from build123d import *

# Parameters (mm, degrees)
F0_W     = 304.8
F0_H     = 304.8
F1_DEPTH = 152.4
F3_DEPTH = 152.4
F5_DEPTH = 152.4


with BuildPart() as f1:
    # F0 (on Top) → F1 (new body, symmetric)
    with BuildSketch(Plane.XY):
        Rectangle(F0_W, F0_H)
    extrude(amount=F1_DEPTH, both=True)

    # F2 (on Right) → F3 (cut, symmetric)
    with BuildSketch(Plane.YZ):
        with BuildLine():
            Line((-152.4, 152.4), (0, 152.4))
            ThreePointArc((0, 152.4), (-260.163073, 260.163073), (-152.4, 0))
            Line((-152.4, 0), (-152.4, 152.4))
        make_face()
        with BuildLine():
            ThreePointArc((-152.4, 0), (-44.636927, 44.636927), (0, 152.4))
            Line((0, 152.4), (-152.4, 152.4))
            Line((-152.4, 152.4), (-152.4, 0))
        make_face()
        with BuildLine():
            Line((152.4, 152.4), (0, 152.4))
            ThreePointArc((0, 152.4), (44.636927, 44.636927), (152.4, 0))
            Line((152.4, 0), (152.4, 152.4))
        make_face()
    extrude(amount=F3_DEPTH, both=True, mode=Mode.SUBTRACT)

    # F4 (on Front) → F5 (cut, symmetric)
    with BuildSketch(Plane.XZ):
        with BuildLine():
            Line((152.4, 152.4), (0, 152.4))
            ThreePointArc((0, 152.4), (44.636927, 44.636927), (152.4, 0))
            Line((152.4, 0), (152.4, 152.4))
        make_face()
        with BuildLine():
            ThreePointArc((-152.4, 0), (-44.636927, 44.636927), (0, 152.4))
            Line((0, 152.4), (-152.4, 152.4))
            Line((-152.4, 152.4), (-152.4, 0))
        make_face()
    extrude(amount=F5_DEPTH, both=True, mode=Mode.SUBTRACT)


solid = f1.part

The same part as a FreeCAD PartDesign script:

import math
import FreeCAD as App
import Part
import Sketcher
Q = App.Units.Quantity


def add_polygon(sketch, points):
    """Adds a closed chain of lines whose ends are joined by coincident constraints."""
    first, n = sketch.GeometryCount, len(points)
    for a, b in zip(points, points[1:] + points[:1]):
        sketch.addGeometry(Part.LineSegment(App.Vector(*a, 0), App.Vector(*b, 0)), False)
    for i in range(n):
        sketch.addConstraint(Sketcher.Constraint("Coincident", first + i, 2, first + (i + 1) % n, 1))

doc = App.newDocument("Part")
body = doc.addObject("PartDesign::Body", "Body")

sketch1 = body.newObject("Sketcher::SketchObject", "Sketch")
sketch1.AttachmentSupport = (doc.getObject("XY_Plane"), [""])
sketch1.MapMode = "FlatFace"
add_polygon(sketch1, [(-152, 152), (-152, -152), (152, -152), (152, 152)])
sketch1.addConstraint(Sketcher.Constraint("Vertical", 0))
sketch1.addConstraint(Sketcher.Constraint("Horizontal", 1))
sketch1.addConstraint(Sketcher.Constraint("Vertical", 2))
sketch1.addConstraint(Sketcher.Constraint("Horizontal", 3))
sketch1.addConstraint(Sketcher.Constraint("Symmetric", 0, 2, 2, 2, -1, 1))
sketch1.addConstraint(Sketcher.Constraint("Equal", 3, 0))
sketch1.addConstraint(Sketcher.Constraint("DistanceX", 1, 1, 1, 2, Q("12 in")))
pad1 = body.newObject("PartDesign::Pad", "Pad")
pad1.Profile = sketch1
pad1.Length = Q("12 in")
pad1.Midplane = True

sketch2 = body.newObject("Sketcher::SketchObject", "Sketch001")
sketch2.AttachmentSupport = (doc.getObject("YZ_Plane"), [""])
sketch2.MapMode = "FlatFace"
sketch2.addGeometry(Part.ArcOfCircle(Part.Circle(App.Vector(-152, 152, 0), App.Vector(0, 0, 1), 152), math.radians(0), math.radians(270)), False)
sketch2.addGeometry(Part.ArcOfCircle(Part.Circle(App.Vector(-152, 152, 0), App.Vector(0, 0, 1), 152), math.radians(-90), math.radians(0)), False)
sketch2.addGeometry(Part.LineSegment(App.Vector(152, 152, 0), App.Vector(0, 152, 0)), False)
sketch2.addGeometry(Part.ArcOfCircle(Part.Circle(App.Vector(152, 152, 0), App.Vector(0, 0, 1), 152), math.radians(-180), math.radians(-90)), False)
sketch2.addGeometry(Part.LineSegment(App.Vector(152, 0, 0), App.Vector(152, 152, 0)), False)
sketch2.addConstraint(Sketcher.Constraint("Tangent", 0, 1, 1, 2))
sketch2.addConstraint(Sketcher.Constraint("Coincident", 1, 1, 0, 2))
sketch2.addConstraint(Sketcher.Constraint("Coincident", 2, 2, 3, 1))
sketch2.addConstraint(Sketcher.Constraint("Coincident", 3, 2, 4, 1))
sketch2.addConstraint(Sketcher.Constraint("Coincident", 4, 2, 2, 1))
sketch2.addConstraint(Sketcher.Constraint("Horizontal", 2))
sketch2.addConstraint(Sketcher.Constraint("Vertical", 4))
sketch2.addConstraint(Sketcher.Constraint("Coincident", 2, 2, 0, 1))
sketch2.addConstraint(Sketcher.Constraint("Coincident", 4, 2, 3, 3))
sketch2.addConstraint(Sketcher.Constraint("Equal", 1, 3))
sketch2.addConstraint(Sketcher.Constraint("Symmetric", 1, 1, 3, 2, -1, 1))
sketch2.addConstraint(Sketcher.Constraint("Symmetric", 0, 3, 3, 3, -2))
sketch2.addConstraint(Sketcher.Constraint("Radius", 0, Q("6 in")))
pocket1 = body.newObject("PartDesign::Pocket", "Pocket")
pocket1.Profile = sketch2
pocket1.Length = Q("12 in")
pocket1.Midplane = True

sketch3 = body.newObject("Sketcher::SketchObject", "Sketch002")
sketch3.AttachmentSupport = (doc.getObject("XZ_Plane"), [""])
sketch3.MapMode = "FlatFace"
sketch3.addGeometry(Part.LineSegment(App.Vector(152, 152, 0), App.Vector(0, 152, 0)), False)
sketch3.addGeometry(Part.ArcOfCircle(Part.Circle(App.Vector(152, 152, 0), App.Vector(0, 0, 1), 152), math.radians(-180), math.radians(-90)), False)
sketch3.addGeometry(Part.LineSegment(App.Vector(152, 0, 0), App.Vector(152, 152, 0)), False)
sketch3.addGeometry(Part.ArcOfCircle(Part.Circle(App.Vector(-152, 152, 0), App.Vector(0, 0, 1), 152), math.radians(-90), math.radians(0)), False)
sketch3.addGeometry(Part.LineSegment(App.Vector(0, 152, 0), App.Vector(-152, 152, 0)), False)
sketch3.addGeometry(Part.LineSegment(App.Vector(-152, 152, 0), App.Vector(-152, 0, 0)), False)
sketch3.addConstraint(Sketcher.Constraint("Coincident", 0, 2, 1, 1))
sketch3.addConstraint(Sketcher.Constraint("Coincident", 1, 2, 2, 1))
sketch3.addConstraint(Sketcher.Constraint("Coincident", 2, 2, 0, 1))
sketch3.addConstraint(Sketcher.Constraint("Coincident", 3, 2, 4, 1))
sketch3.addConstraint(Sketcher.Constraint("Coincident", 4, 2, 5, 1))
sketch3.addConstraint(Sketcher.Constraint("Coincident", 5, 2, 3, 1))
sketch3.addConstraint(Sketcher.Constraint("Horizontal", 0))
sketch3.addConstraint(Sketcher.Constraint("Vertical", 2))
sketch3.addConstraint(Sketcher.Constraint("Horizontal", 4))
sketch3.addConstraint(Sketcher.Constraint("Vertical", 5))
sketch3.addConstraint(Sketcher.Constraint("Coincident", 2, 2, 1, 3))
sketch3.addConstraint(Sketcher.Constraint("Coincident", 3, 2, 0, 2))
sketch3.addConstraint(Sketcher.Constraint("Coincident", 4, 2, 3, 3))
sketch3.addConstraint(Sketcher.Constraint("Equal", 1, 3))
sketch3.addConstraint(Sketcher.Constraint("Symmetric", 1, 2, 5, 2, -1, 1))
sketch3.addConstraint(Sketcher.Constraint("Radius", 1, Q("6.0000001 in")))
pocket2 = body.newObject("PartDesign::Pocket", "Pocket001")
pocket2.Profile = sketch3
pocket2.Length = Q("12 in")
pocket2.Midplane = True

doc.recompute()
